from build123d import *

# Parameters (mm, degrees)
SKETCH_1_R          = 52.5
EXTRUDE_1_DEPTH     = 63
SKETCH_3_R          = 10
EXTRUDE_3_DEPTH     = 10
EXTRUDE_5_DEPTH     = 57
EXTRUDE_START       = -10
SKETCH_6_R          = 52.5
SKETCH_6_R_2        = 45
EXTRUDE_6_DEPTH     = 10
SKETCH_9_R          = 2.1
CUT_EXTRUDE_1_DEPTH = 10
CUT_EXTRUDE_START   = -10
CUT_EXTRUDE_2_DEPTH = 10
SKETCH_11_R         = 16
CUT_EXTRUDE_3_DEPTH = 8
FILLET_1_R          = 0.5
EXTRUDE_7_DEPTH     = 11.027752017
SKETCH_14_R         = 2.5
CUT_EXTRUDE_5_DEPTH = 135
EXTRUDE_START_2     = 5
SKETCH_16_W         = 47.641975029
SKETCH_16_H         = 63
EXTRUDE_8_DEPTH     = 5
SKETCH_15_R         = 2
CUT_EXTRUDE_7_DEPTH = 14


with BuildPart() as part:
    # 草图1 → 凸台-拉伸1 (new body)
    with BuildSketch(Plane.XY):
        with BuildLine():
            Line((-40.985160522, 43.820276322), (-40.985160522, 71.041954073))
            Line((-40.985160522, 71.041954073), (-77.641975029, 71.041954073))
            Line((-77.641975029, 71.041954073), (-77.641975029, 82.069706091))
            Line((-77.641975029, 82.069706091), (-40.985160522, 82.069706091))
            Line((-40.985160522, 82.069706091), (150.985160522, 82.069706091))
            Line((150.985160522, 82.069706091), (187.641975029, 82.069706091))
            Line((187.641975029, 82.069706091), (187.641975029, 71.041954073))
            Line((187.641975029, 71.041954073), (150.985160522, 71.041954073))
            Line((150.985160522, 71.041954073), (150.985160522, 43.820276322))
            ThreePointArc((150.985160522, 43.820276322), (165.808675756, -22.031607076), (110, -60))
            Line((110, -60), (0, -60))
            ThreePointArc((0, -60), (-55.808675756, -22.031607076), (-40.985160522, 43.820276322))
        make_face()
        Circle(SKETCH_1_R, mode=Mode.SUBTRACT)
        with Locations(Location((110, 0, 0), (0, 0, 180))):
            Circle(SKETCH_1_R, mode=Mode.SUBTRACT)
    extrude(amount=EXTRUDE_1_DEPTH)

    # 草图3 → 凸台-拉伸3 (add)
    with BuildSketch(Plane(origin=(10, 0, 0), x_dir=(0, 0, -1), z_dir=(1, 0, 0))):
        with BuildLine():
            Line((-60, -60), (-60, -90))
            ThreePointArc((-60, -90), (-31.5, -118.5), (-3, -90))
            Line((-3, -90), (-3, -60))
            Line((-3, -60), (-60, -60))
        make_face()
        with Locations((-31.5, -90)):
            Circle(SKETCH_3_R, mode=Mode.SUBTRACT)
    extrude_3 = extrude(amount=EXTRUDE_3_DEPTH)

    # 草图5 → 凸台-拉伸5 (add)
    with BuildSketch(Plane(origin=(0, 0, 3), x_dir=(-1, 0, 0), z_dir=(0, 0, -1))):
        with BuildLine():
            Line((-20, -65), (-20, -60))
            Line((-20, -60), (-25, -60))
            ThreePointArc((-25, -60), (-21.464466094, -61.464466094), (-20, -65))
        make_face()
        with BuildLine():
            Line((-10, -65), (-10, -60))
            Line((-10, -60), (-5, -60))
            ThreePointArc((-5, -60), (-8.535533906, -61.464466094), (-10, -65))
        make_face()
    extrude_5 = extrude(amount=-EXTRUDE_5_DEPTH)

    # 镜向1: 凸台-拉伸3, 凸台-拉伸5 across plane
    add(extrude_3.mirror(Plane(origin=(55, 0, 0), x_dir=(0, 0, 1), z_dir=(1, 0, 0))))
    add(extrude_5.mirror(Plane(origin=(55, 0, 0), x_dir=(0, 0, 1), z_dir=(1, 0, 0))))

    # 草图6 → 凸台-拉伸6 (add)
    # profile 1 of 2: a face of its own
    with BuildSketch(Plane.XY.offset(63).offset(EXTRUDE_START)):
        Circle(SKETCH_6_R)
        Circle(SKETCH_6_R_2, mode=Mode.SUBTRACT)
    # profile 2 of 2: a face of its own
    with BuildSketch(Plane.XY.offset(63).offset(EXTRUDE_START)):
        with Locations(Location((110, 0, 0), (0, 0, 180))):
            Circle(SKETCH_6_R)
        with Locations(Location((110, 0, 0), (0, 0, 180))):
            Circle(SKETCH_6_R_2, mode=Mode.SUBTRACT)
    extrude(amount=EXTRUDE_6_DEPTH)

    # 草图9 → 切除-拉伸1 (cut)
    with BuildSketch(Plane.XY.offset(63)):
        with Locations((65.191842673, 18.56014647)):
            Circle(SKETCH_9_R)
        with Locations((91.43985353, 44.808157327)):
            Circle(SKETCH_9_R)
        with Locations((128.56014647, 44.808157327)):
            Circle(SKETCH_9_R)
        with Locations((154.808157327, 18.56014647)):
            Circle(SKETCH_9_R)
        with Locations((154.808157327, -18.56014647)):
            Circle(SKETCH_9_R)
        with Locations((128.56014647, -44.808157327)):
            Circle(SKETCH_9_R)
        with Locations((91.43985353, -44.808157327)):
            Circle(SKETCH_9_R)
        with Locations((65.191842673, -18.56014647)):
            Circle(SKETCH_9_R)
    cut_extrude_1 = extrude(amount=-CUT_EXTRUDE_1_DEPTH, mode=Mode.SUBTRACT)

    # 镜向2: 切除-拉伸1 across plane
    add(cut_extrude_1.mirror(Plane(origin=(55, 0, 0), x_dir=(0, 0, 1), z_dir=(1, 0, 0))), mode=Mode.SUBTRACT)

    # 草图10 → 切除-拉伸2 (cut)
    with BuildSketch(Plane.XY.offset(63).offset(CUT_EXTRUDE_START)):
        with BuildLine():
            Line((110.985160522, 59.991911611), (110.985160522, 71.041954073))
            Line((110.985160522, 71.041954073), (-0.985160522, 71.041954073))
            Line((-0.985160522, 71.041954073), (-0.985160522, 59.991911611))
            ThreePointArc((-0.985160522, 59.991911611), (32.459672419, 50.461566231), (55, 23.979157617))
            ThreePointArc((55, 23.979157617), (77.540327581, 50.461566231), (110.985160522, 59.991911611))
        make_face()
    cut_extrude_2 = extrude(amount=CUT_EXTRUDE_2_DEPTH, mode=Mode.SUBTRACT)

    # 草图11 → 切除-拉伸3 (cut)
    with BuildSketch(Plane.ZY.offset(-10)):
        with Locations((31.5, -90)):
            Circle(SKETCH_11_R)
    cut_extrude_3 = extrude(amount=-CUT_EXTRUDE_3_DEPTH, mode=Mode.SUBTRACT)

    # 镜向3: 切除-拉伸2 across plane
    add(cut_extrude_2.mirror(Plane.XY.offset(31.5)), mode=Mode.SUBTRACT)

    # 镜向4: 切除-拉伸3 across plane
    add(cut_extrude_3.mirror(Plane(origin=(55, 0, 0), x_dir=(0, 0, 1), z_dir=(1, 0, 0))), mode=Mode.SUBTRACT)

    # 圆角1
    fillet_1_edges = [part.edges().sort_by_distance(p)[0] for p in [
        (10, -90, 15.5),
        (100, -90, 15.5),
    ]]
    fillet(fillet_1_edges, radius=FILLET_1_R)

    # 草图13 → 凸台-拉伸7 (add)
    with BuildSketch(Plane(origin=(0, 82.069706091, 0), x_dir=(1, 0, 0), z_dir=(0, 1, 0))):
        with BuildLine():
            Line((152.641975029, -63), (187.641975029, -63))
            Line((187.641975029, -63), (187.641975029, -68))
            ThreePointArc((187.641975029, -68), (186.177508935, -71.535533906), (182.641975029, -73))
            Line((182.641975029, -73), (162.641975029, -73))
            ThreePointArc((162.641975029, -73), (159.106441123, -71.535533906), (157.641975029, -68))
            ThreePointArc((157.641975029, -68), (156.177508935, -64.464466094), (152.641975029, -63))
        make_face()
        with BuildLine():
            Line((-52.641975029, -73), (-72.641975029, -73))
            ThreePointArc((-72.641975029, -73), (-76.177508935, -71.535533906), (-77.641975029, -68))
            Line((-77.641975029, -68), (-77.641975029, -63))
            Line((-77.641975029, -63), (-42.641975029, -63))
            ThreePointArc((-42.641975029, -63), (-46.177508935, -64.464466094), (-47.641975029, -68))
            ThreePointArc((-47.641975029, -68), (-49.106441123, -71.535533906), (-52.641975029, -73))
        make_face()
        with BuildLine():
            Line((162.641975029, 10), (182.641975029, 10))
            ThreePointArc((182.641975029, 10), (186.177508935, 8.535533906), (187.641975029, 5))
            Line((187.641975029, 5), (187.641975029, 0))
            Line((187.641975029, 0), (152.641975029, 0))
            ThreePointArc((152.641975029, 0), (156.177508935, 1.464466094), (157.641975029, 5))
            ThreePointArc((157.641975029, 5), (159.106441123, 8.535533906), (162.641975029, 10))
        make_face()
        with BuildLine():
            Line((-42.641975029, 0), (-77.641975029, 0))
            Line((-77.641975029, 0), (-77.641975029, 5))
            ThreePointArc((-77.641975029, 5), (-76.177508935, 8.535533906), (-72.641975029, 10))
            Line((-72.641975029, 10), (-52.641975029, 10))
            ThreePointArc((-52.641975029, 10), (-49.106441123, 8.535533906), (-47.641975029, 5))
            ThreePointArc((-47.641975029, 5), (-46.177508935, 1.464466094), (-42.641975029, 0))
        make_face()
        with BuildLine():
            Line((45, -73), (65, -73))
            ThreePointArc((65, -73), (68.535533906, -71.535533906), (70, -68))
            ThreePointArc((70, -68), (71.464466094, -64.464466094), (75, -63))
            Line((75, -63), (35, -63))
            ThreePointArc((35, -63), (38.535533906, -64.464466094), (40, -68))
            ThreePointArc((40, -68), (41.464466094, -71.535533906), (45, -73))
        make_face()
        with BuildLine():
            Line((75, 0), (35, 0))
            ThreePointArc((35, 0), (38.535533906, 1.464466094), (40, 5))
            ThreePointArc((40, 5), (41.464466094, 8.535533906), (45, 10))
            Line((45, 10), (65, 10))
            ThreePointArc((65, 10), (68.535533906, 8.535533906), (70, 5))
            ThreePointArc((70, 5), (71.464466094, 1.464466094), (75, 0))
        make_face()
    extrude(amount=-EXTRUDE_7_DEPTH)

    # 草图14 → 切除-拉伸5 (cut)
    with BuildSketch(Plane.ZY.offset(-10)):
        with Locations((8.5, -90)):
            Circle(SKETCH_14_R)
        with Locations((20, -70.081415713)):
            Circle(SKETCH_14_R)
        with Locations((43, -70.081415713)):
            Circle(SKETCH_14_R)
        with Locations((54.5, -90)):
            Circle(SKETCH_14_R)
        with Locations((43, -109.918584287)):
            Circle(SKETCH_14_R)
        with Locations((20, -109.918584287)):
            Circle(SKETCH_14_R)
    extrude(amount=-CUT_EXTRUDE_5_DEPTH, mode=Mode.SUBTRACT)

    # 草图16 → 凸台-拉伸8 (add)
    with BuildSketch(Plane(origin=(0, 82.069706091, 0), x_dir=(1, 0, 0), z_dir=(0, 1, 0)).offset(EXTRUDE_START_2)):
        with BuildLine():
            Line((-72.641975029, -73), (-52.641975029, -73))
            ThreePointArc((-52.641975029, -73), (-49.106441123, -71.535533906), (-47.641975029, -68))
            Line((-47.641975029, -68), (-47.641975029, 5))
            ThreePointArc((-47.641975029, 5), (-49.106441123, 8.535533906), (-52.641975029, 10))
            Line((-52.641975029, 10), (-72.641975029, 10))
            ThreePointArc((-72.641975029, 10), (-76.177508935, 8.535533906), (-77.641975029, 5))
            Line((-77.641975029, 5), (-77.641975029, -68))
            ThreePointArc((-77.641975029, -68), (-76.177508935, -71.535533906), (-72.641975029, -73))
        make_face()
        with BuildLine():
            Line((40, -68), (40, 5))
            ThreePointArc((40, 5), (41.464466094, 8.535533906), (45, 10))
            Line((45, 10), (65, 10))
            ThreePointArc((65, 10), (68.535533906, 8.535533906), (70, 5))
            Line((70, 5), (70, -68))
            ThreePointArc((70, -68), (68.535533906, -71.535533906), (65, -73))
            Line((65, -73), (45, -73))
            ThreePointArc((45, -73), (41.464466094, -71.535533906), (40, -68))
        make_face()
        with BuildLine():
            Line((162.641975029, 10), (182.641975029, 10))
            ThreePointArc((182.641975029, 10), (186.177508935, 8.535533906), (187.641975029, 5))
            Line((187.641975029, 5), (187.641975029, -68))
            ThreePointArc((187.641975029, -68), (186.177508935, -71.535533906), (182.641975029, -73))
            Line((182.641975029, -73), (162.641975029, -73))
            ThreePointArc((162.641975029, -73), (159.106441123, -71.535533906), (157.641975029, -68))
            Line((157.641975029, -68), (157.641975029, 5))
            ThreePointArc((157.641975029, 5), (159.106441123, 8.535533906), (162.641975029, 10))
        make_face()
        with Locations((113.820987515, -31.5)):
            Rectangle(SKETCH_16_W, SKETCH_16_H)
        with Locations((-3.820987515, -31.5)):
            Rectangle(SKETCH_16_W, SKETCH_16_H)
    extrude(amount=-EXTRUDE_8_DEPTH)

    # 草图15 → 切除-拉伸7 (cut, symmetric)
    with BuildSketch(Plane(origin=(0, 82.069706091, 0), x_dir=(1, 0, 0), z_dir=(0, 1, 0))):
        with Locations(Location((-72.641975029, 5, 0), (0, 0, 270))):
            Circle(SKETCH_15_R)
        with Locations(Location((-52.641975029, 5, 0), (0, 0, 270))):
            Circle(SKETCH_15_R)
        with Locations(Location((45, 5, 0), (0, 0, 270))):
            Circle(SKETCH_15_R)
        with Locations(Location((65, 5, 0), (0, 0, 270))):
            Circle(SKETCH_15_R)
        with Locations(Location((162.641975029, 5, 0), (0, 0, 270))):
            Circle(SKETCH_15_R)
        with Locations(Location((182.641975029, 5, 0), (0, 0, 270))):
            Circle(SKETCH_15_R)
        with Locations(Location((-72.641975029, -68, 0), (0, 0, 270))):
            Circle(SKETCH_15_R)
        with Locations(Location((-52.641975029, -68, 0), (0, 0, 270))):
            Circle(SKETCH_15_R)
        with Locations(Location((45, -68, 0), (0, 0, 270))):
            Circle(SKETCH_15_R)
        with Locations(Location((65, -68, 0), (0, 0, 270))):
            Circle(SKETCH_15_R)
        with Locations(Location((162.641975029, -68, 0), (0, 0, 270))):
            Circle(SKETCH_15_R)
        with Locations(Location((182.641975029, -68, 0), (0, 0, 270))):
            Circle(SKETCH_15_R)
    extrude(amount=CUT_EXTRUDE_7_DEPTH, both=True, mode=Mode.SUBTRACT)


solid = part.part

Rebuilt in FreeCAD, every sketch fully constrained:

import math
import FreeCAD as App
import Part
import Sketcher
from FreeCAD import Vector
Q = App.Units.Quantity


def edges_at(feature, points):
    """Names of the edges that pass closest to the given points."""
    edges = feature.Shape.Edges
    near = lambda p: min(range(len(edges)), key=lambda i: edges[i].distToShape(Part.Vertex(*p))[0])
    return sorted({f"Edge{near(p) + 1}" for p in points})

doc = App.newDocument("Part")
body = doc.addObject("PartDesign::Body", "Body")

# Sketch on XY plane
sketch1 = body.newObject("Sketcher::SketchObject", "Sketch")
sketch1.AttachmentSupport = (doc.getObject("XY_Plane"), [""])
sketch1.MapMode = "FlatFace"
sketch1.addGeometry([
    Part.LineSegment(Vector(-41, 71, 0), Vector(-41, 44, 0)),  # 0
    Part.ArcOfCircle(Part.Circle(Vector(0, 0, 0), Vector(0, 0, 1), 60), math.radians(133), math.radians(270)),  # 1
    Part.LineSegment(Vector(0, -60, 0), Vector(110, -60, 0)),  # 2
    Part.ArcOfCircle(Part.Circle(Vector(110, 0, 0), Vector(0, 0, 1), 60), math.radians(-90), math.radians(47)),  # 3
    Part.LineSegment(Vector(151, 44, 0), Vector(151, 71, 0)),  # 4
    Part.LineSegment(Vector(151, 71, 0), Vector(188, 71, 0)),  # 5
    Part.LineSegment(Vector(188, 71, 0), Vector(188, 82, 0)),  # 6
    Part.LineSegment(Vector(188, 82, 0), Vector(-78, 82, 0)),  # 7
    Part.LineSegment(Vector(-78, 82, 0), Vector(-78, 71, 0)),  # 8
    Part.LineSegment(Vector(-78, 71, 0), Vector(-41, 71, 0)),  # 9
    Part.Circle(Vector(110, 0, 0), Vector(0, 0, 1), 52),  # 10
    Part.Circle(Vector(0, 0, 0), Vector(0, 0, 1), 52),  # 11
], False)
sketch1.addConstraint([
    Sketcher.Constraint("Coincident", 0, 2, 1, 1),
    Sketcher.Constraint("Tangent", 1, 2, 2, 1),
    Sketcher.Constraint("Tangent", 2, 2, 3, 1),
    Sketcher.Constraint("Coincident", 3, 2, 4, 1),
    Sketcher.Constraint("Coincident", 4, 2, 5, 1),
    Sketcher.Constraint("Coincident", 5, 2, 6, 1),
    Sketcher.Constraint("Coincident", 6, 2, 7, 1),
    Sketcher.Constraint("Coincident", 7, 2, 8, 1),
    Sketcher.Constraint("Coincident", 8, 2, 9, 1),
    Sketcher.Constraint("Coincident", 9, 2, 0, 1),
    Sketcher.Constraint("Vertical", 0),
    Sketcher.Constraint("Horizontal", 2),
    Sketcher.Constraint("Vertical", 4),
    Sketcher.Constraint("Horizontal", 5),
    Sketcher.Constraint("Vertical", 6),
    Sketcher.Constraint("Horizontal", 7),
    Sketcher.Constraint("Vertical", 8),
    Sketcher.Constraint("Horizontal", 9),
    Sketcher.Constraint("Coincident", 1, 3, -1, 1),
    Sketcher.Constraint("Coincident", 11, 3, -1, 1),
    Sketcher.Constraint("Coincident", 10, 3, 3, 3),
    Sketcher.Constraint("Equal", 1, 3),
    Sketcher.Constraint("Equal", 10, 11),
    Sketcher.Constraint("Horizontal", 0, 2, 3, 2),
    Sketcher.Constraint("Horizontal", 5, 2, 8, 2),
    Sketcher.Constraint("Equal", 5, 9),
    Sketcher.Constraint("Diameter", 10, Q("105 mm")),
    Sketcher.Constraint("Radius", 1, Q("60 mm")),
    Sketcher.Constraint("DistanceX", 2, 1, 2, 2, Q("110 mm")),
    Sketcher.Constraint("DistanceX", 7, 2, 7, 1, Q("265.28395 mm")),
    Sketcher.Constraint("DistanceX", 5, 1, 5, 2, Q("36.656815 mm")),
    Sketcher.Constraint("DistanceY", 0, 2, 0, 1, Q("27.221678 mm")),
    Sketcher.Constraint("DistanceY", 6, 1, 6, 2, Q("11.027752 mm")),
])
pad1 = body.newObject("PartDesign::Pad", "Pad")
pad1.Profile = sketch1
pad1.Length = 63

# Sketch on YZ plane
sketch2 = body.newObject("Sketcher::SketchObject", "Sketch001")
sketch2.AttachmentSupport = (doc.getObject("YZ_Plane"), [""])
sketch2.MapMode = "FlatFace"
sketch2.AttachmentOffset = App.Placement(Vector(0, 0, 10), App.Rotation())
sketch2.addGeometry([
    Part.LineSegment(Vector(-60, 60, 0), Vector(-90, 60, 0)),  # 0
    Part.ArcOfCircle(Part.Circle(Vector(-90, 32, 0), Vector(0, 0, 1), 28), math.radians(90), math.radians(270)),  # 1
    Part.LineSegment(Vector(-90, 3, 0), Vector(-60, 3, 0)),  # 2
    Part.LineSegment(Vector(-60, 3, 0), Vector(-60, 60, 0)),  # 3
    Part.Circle(Vector(-90, 32, 0), Vector(0, 0, 1), 10),  # 4
], False)
sketch2.addConstraint([
    Sketcher.Constraint("Tangent", 0, 2, 1, 1),
    Sketcher.Constraint("Tangent", 1, 2, 2, 1),
    Sketcher.Constraint("Coincident", 2, 2, 3, 1),
    Sketcher.Constraint("Coincident", 3, 2, 0, 1),
    Sketcher.Constraint("Horizontal", 0),
    Sketcher.Constraint("Horizontal", 2),
    Sketcher.Constraint("Vertical", 3),
    Sketcher.Constraint("Coincident", 4, 3, 1, 3),
    Sketcher.Constraint("Diameter", 4, Q("20 mm")),
    Sketcher.Constraint("Radius", 1, Q("28.5 mm")),
    Sketcher.Constraint("DistanceX", 0, 2, 0, 1, Q("30 mm")),
    Sketcher.Constraint("DistanceX", 1, 3, -1, 1, Q("90 mm")),
    Sketcher.Constraint("DistanceY", -1, 1, 0, 2, Q("60 mm")),
])
pad2 = body.newObject("PartDesign::Pad", "Pad001")
pad2.Profile = sketch2
pad2.Length = 10

# Sketch on XY plane
sketch3 = body.newObject("Sketcher::SketchObject", "Sketch002")
sketch3.AttachmentSupport = (doc.getObject("XY_Plane"), [""])
sketch3.MapMode = "FlatFace"
sketch3.AttachmentOffset = App.Placement(Vector(0, 0, 3), App.Rotation())
sketch3.addGeometry([
    Part.LineSegment(Vector(20, -65, 0), Vector(20, -60, 0)),  # 0
    Part.LineSegment(Vector(20, -60, 0), Vector(25, -60, 0)),  # 1
    Part.ArcOfCircle(Part.Circle(Vector(25, -65, 0), Vector(0, 0, 1), 5), math.radians(90), math.radians(180)),  # 2
    Part.LineSegment(Vector(10, -60, 0), Vector(10, -65, 0)),  # 3
    Part.ArcOfCircle(Part.Circle(Vector(5, -65, 0), Vector(0, 0, 1), 5), math.radians(0), math.radians(90)),  # 4
    Part.LineSegment(Vector(5, -60, 0), Vector(10, -60, 0)),  # 5
], False)
sketch3.addConstraint([
    Sketcher.Constraint("Coincident", 0, 2, 1, 1),
    Sketcher.Constraint("Tangent", 1, 2, 2, 1),
    Sketcher.Constraint("Tangent", 2, 2, 0, 1),
    Sketcher.Constraint("Tangent", 3, 2, 4, 1),
    Sketcher.Constraint("Tangent", 4, 2, 5, 1),
    Sketcher.Constraint("Coincident", 5, 2, 3, 1),
    Sketcher.Constraint("Vertical", 0),
    Sketcher.Constraint("Horizontal", 1),
    Sketcher.Constraint("Vertical", 3),
    Sketcher.Constraint("Horizontal", 5),
    Sketcher.Constraint("Equal", 2, 4),
    Sketcher.Constraint("Horizontal", 2, 3, 4, 3),
    Sketcher.Constraint("Radius", 2, Q("5 mm")),
    Sketcher.Constraint("DistanceX", -1, 1, 2, 3, Q("25 mm")),
    Sketcher.Constraint("DistanceY", 2, 3, -1, 1, Q("65 mm")),
    Sketcher.Constraint("DistanceX", -1, 1, 4, 3, Q("5 mm")),
])
pad3 = body.newObject("PartDesign::Pad", "Pad002")
pad3.Profile = sketch3
pad3.Length = 57
doc.recompute()

datumplane = body.newObject("PartDesign::Plane", "DatumPlane")
datumplane.AttachmentSupport = (doc.getObject("YZ_Plane"), [""])
datumplane.MapMode = "FlatFace"
datumplane.AttachmentOffset = App.Placement(Vector(0, 0, 55), App.Rotation())
mirrored = body.newObject("PartDesign::Mirrored", "Mirrored")
mirrored.Originals = [pad2, pad3]
mirrored.MirrorPlane = (datumplane, [""])
body.Tip = mirrored

# Sketch on XY plane
sketch4 = body.newObject("Sketcher::SketchObject", "Sketch003")
sketch4.AttachmentSupport = (doc.getObject("XY_Plane"), [""])
sketch4.MapMode = "FlatFace"
sketch4.AttachmentOffset = App.Placement(Vector(0, 0, 53), App.Rotation())
sketch4.addGeometry([
    Part.Circle(Vector(0, 0, 0), Vector(0, 0, 1), 52),
    Part.Circle(Vector(0, 0, 0), Vector(0, 0, 1), 45),
    Part.Circle(Vector(110, 0, 0), Vector(0, 0, 1), 52),
    Part.Circle(Vector(110, 0, 0), Vector(0, 0, 1), 45),
], False)
sketch4.addConstraint([
    Sketcher.Constraint("Coincident", 0, 3, -1, 1),
    Sketcher.Constraint("Coincident", 1, 3, -1, 1),
    Sketcher.Constraint("Coincident", 3, 3, 2, 3),
    Sketcher.Constraint("Equal", 0, 2),
    Sketcher.Constraint("Equal", 1, 3),
    Sketcher.Constraint("PointOnObject", 2, 3, -1),
    Sketcher.Constraint("Diameter", 0, Q("105 mm")),
    Sketcher.Constraint("Diameter", 1, Q("90 mm")),
    Sketcher.Constraint("DistanceX", -1, 1, 2, 3, Q("110 mm")),
])
pad4 = body.newObject("PartDesign::Pad", "Pad003")
pad4.Profile = sketch4
pad4.Length = 10

# Sketch on XY plane
sketch5 = body.newObject("Sketcher::SketchObject", "Sketch004")
sketch5.AttachmentSupport = (doc.getObject("XY_Plane"), [""])
sketch5.MapMode = "FlatFace"
sketch5.AttachmentOffset = App.Placement(Vector(0, 0, 63), App.Rotation())
sketch5.addGeometry([
    Part.Circle(Vector(65.2, 18.6, 0), Vector(0, 0, 1), 2.1),  # 0
    Part.Circle(Vector(91.4, 44.8, 0), Vector(0, 0, 1), 2.1),  # 1
    Part.Circle(Vector(128.6, 44.8, 0), Vector(0, 0, 1), 2.1),  # 2
    Part.Circle(Vector(154.8, 18.6, 0), Vector(0, 0, 1), 2.1),  # 3
    Part.Circle(Vector(154.8, -18.6, 0), Vector(0, 0, 1), 2.1),  # 4
    Part.Circle(Vector(128.6, -44.8, 0), Vector(0, 0, 1), 2.1),  # 5
    Part.Circle(Vector(91.4, -44.8, 0), Vector(0, 0, 1), 2.1),  # 6
    Part.Circle(Vector(65.2, -18.6, 0), Vector(0, 0, 1), 2.1),  # 7
], False)
sketch5.addConstraint([
    Sketcher.Constraint("Equal", 0, 1),
    Sketcher.Constraint("Equal", 1, 2),
    Sketcher.Constraint("Equal", 2, 3),
    Sketcher.Constraint("Equal", 3, 4),
    Sketcher.Constraint("Equal", 4, 5),
    Sketcher.Constraint("Equal", 5, 6),
    Sketcher.Constraint("Equal", 6, 7),
    Sketcher.Constraint("Symmetric", 3, 3, 4, 3, -1),
    Sketcher.Constraint("Symmetric", 2, 3, 5, 3, -1),
    Sketcher.Constraint("Symmetric", 1, 3, 6, 3, -1),
    Sketcher.Constraint("Symmetric", 0, 3, 7, 3, -1),
    Sketcher.Constraint("Horizontal", 1, 3, 2, 3),
    Sketcher.Constraint("Horizontal", 0, 3, 3, 3),
    Sketcher.Constraint("Diameter", 0, Q("4.2 mm")),
    Sketcher.Constraint("DistanceX", 0, 3, 1, 3, Q("26.248011 mm")),
    Sketcher.Constraint("DistanceY", 0, 3, 1, 3, Q("26.248011 mm")),
    Sketcher.Constraint("DistanceX", 2, 3, 3, 3, Q("26.248011 mm")),
    Sketcher.Constraint("DistanceX", -1, 1, 0, 3, Q("65.191843 mm")),
    Sketcher.Constraint("DistanceY", -1, 1, 0, 3, Q("18.560146 mm")),
    Sketcher.Constraint("DistanceX", -1, 1, 2, 3, Q("128.560146 mm")),
])
pocket1 = body.newObject("PartDesign::Pocket", "Pocket")
pocket1.Profile = sketch5
pocket1.Length = 10
doc.recompute()

datumplane2 = body.newObject("PartDesign::Plane", "DatumPlane001")
datumplane2.AttachmentSupport = (doc.getObject("YZ_Plane"), [""])
datumplane2.MapMode = "FlatFace"
datumplane2.AttachmentOffset = App.Placement(Vector(0, 0, 55), App.Rotation())
mirrored2 = body.newObject("PartDesign::Mirrored", "Mirrored001")
mirrored2.Originals = [pocket1]
mirrored2.MirrorPlane = (datumplane2, [""])
body.Tip = mirrored2

# Sketch on XY plane
sketch6 = body.newObject("Sketcher::SketchObject", "Sketch005")
sketch6.AttachmentSupport = (doc.getObject("XY_Plane"), [""])
sketch6.MapMode = "FlatFace"
sketch6.AttachmentOffset = App.Placement(Vector(0, 0, 53), App.Rotation())
sketch6.addGeometry([
    Part.LineSegment(Vector(111, 60, 0), Vector(111, 71, 0)),  # 0
    Part.LineSegment(Vector(111, 71, 0), Vector(-1, 71, 0)),  # 1
    Part.LineSegment(Vector(-1, 71, 0), Vector(-1, 60, 0)),  # 2
    Part.ArcOfCircle(Part.Circle(Vector(0, 0, 0), Vector(0, 0, 1), 60), math.radians(24), math.radians(91)),  # 3
    Part.ArcOfCircle(Part.Circle(Vector(110, 0, 0), Vector(0, 0, 1), 60), math.radians(89), math.radians(156)),  # 4
], False)
sketch6.addConstraint([
    Sketcher.Constraint("Coincident", 0, 2, 1, 1),
    Sketcher.Constraint("Coincident", 1, 2, 2, 1),
    Sketcher.Constraint("Coincident", 2, 2, 3, 2),
    Sketcher.Constraint("Coincident", 3, 1, 4, 2),
    Sketcher.Constraint("Coincident", 4, 1, 0, 1),
    Sketcher.Constraint("Vertical", 0),
    Sketcher.Constraint("Horizontal", 1),
    Sketcher.Constraint("Vertical", 2),
    Sketcher.Constraint("Coincident", 3, 3, -1, 1),
    Sketcher.Constraint("Equal", 3, 4),
    Sketcher.Constraint("PointOnObject", 4, 3, -1),
    Sketcher.Constraint("Horizontal", 2, 2, 4, 1),
    Sketcher.Constraint("Radius", 3, Q("60 mm")),
    Sketcher.Constraint("DistanceX", -1, 1, 4, 3, Q("110 mm")),
    Sketcher.Constraint("DistanceX", 1, 2, 1, 1, Q("111.970321 mm")),
    Sketcher.Constraint("DistanceY", 0, 1, 0, 2, Q("11.050042 mm")),
])
pocket2 = body.newObject("PartDesign::Pocket", "Pocket001")
pocket2.Profile = sketch6
pocket2.Length = 10
pocket2.Reversed = True

# Sketch on YZ plane
sketch7 = body.newObject("Sketcher::SketchObject", "Sketch006")
sketch7.AttachmentSupport = (doc.getObject("YZ_Plane"), [""])
sketch7.MapMode = "FlatFace"
sketch7.AttachmentOffset = App.Placement(Vector(0, 0, 10), App.Rotation())
sketch7.addGeometry(Part.Circle(Vector(-90, 32, 0), Vector(0, 0, 1), 16), False)
sketch7.addConstraint([
    Sketcher.Constraint("Diameter", 0, Q("32 mm")),
    Sketcher.Constraint("DistanceX", 0, 3, -1, 1, Q("90 mm")),
    Sketcher.Constraint("DistanceY", -1, 1, 0, 3, Q("31.5 mm")),
])
pocket3 = body.newObject("PartDesign::Pocket", "Pocket002")
pocket3.Profile = sketch7
pocket3.Length = 8
pocket3.Reversed = True
doc.recompute()

datumplane3 = body.newObject("PartDesign::Plane", "DatumPlane002")
datumplane3.AttachmentSupport = (doc.getObject("XY_Plane"), [""])
datumplane3.MapMode = "FlatFace"
datumplane3.AttachmentOffset = App.Placement(Vector(0, 0, 31.5), App.Rotation())
mirrored3 = body.newObject("PartDesign::Mirrored", "Mirrored002")
mirrored3.Originals = [pocket2]
mirrored3.MirrorPlane = (datumplane3, [""])
body.Tip = mirrored3
doc.recompute()

datumplane4 = body.newObject("PartDesign::Plane", "DatumPlane003")
datumplane4.AttachmentSupport = (doc.getObject("YZ_Plane"), [""])
datumplane4.MapMode = "FlatFace"
datumplane4.AttachmentOffset = App.Placement(Vector(0, 0, 55), App.Rotation())
mirrored4 = body.newObject("PartDesign::Mirrored", "Mirrored003")
mirrored4.Originals = [pocket3]
mirrored4.MirrorPlane = (datumplane4, [""])
body.Tip = mirrored4
doc.recompute()

fillet = body.newObject("PartDesign::Fillet", "Fillet")
fillet.Base = (mirrored4, edges_at(mirrored4, [(10, -90, 15.5), (100, -90, 15.5)]))
fillet.Radius = 0.5

# Sketch on XZ plane
sketch8 = body.newObject("Sketcher::SketchObject", "Sketch007")
sketch8.AttachmentSupport = (doc.getObject("XZ_Plane"), [""])
sketch8.MapMode = "FlatFace"
sketch8.AttachmentOffset = App.Placement(Vector(0, 0, -82.069706), App.Rotation())
sketch8.addGeometry([
    Part.LineSegment(Vector(188, 63, 0), Vector(153, 63, 0)),  # 0
    Part.ArcOfCircle(Part.Circle(Vector(153, 68, 0), Vector(0, 0, 1), 5), math.radians(-90), math.radians(0)),  # 1
    Part.ArcOfCircle(Part.Circle(Vector(163, 68, 0), Vector(0, 0, 1), 5), math.radians(90), math.radians(180)),  # 2
    Part.LineSegment(Vector(163, 73, 0), Vector(183, 73, 0)),  # 3
    Part.ArcOfCircle(Part.Circle(Vector(183, 68, 0), Vector(0, 0, 1), 5), math.radians(0), math.radians(90)),  # 4
    Part.LineSegment(Vector(188, 68, 0), Vector(188, 63, 0)),  # 5
    Part.LineSegment(Vector(-73, 73, 0), Vector(-53, 73, 0)),  # 6
    Part.ArcOfCircle(Part.Circle(Vector(-53, 68, 0), Vector(0, 0, 1), 5), math.radians(0), math.radians(90)),  # 7
    Part.ArcOfCircle(Part.Circle(Vector(-43, 68, 0), Vector(0, 0, 1), 5), math.radians(180), math.radians(270)),  # 8
    Part.LineSegment(Vector(-43, 63, 0), Vector(-78, 63, 0)),  # 9
    Part.LineSegment(Vector(-78, 63, 0), Vector(-78, 68, 0)),  # 10
    Part.ArcOfCircle(Part.Circle(Vector(-73, 68, 0), Vector(0, 0, 1), 5), math.radians(90), math.radians(180)),  # 11
    Part.LineSegment(Vector(183, -10, 0), Vector(163, -10, 0)),  # 12
    Part.ArcOfCircle(Part.Circle(Vector(163, -5, 0), Vector(0, 0, 1), 5), math.radians(180), math.radians(270)),  # 13
    Part.ArcOfCircle(Part.Circle(Vector(153, -5, 0), Vector(0, 0, 1), 5), math.radians(0), math.radians(90)),  # 14
    Part.LineSegment(Vector(153, 0, 0), Vector(188, 0, 0)),  # 15
    Part.LineSegment(Vector(188, 0, 0), Vector(188, -5, 0)),  # 16
    Part.ArcOfCircle(Part.Circle(Vector(183, -5, 0), Vector(0, 0, 1), 5), math.radians(-90), math.radians(0)),  # 17
    Part.LineSegment(Vector(-78, 0, 0), Vector(-43, 0, 0)),  # 18
    Part.ArcOfCircle(Part.Circle(Vector(-43, -5, 0), Vector(0, 0, 1), 5), math.radians(90), math.radians(180)),  # 19
    Part.ArcOfCircle(Part.Circle(Vector(-53, -5, 0), Vector(0, 0, 1), 5), math.radians(-90), math.radians(0)),  # 20
    Part.LineSegment(Vector(-53, -10, 0), Vector(-73, -10, 0)),  # 21
    Part.ArcOfCircle(Part.Circle(Vector(-73, -5, 0), Vector(0, 0, 1), 5), math.radians(180), math.radians(270)),  # 22
    Part.LineSegment(Vector(-78, -5, 0), Vector(-78, 0, 0)),  # 23
    Part.LineSegment(Vector(45, 73, 0), Vector(65, 73, 0)),  # 24
    Part.ArcOfCircle(Part.Circle(Vector(65, 68, 0), Vector(0, 0, 1), 5), math.radians(0), math.radians(90)),  # 25
    Part.ArcOfCircle(Part.Circle(Vector(75, 68, 0), Vector(0, 0, 1), 5), math.radians(180), math.radians(270)),  # 26
    Part.LineSegment(Vector(75, 63, 0), Vector(35, 63, 0)),  # 27
    Part.ArcOfCircle(Part.Circle(Vector(35, 68, 0), Vector(0, 0, 1), 5), math.radians(-90), math.radians(0)),  # 28
    Part.ArcOfCircle(Part.Circle(Vector(45, 68, 0), Vector(0, 0, 1), 5), math.radians(90), math.radians(180)),  # 29
    Part.LineSegment(Vector(35, 0, 0), Vector(75, 0, 0)),  # 30
    Part.ArcOfCircle(Part.Circle(Vector(75, -5, 0), Vector(0, 0, 1), 5), math.radians(90), math.radians(180)),  # 31
    Part.ArcOfCircle(Part.Circle(Vector(65, -5, 0), Vector(0, 0, 1), 5), math.radians(-90), math.radians(0)),  # 32
    Part.LineSegment(Vector(65, -10, 0), Vector(45, -10, 0)),  # 33
    Part.ArcOfCircle(Part.Circle(Vector(45, -5, 0), Vector(0, 0, 1), 5), math.radians(180), math.radians(270)),  # 34
    Part.ArcOfCircle(Part.Circle(Vector(35, -5, 0), Vector(0, 0, 1), 5), math.radians(0), math.radians(90)),  # 35
], False)
sketch8.addConstraint([
    Sketcher.Constraint("Tangent", 0, 2, 1, 1),
    Sketcher.Constraint("Tangent", 1, 2, 2, 2),
    Sketcher.Constraint("Tangent", 2, 1, 3, 1),
    Sketcher.Constraint("Tangent", 3, 2, 4, 2),
    Sketcher.Constraint("Tangent", 4, 1, 5, 1),
    Sketcher.Constraint("Coincident", 5, 2, 0, 1),
    Sketcher.Constraint("Tangent", 6, 2, 7, 2),
    Sketcher.Constraint("Tangent", 7, 1, 8, 1),
    Sketcher.Constraint("Tangent", 8, 2, 9, 1),
    Sketcher.Constraint("Coincident", 9, 2, 10, 1),
    Sketcher.Constraint("Tangent", 10, 2, 11, 2),
    Sketcher.Constraint("Tangent", 11, 1, 6, 1),
    Sketcher.Constraint("Tangent", 12, 2, 13, 2),
    Sketcher.Constraint("Tangent", 13, 1, 14, 1),
    Sketcher.Constraint("Tangent", 14, 2, 15, 1),
    Sketcher.Constraint("Coincident", 15, 2, 16, 1),
    Sketcher.Constraint("Tangent", 16, 2, 17, 2),
    Sketcher.Constraint("Tangent", 17, 1, 12, 1),
    Sketcher.Constraint("Tangent", 18, 2, 19, 1),
    Sketcher.Constraint("Tangent", 19, 2, 20, 2),
    Sketcher.Constraint("Tangent", 20, 1, 21, 1),
    Sketcher.Constraint("Tangent", 21, 2, 22, 2),
    Sketcher.Constraint("Tangent", 22, 1, 23, 1),
    Sketcher.Constraint("Coincident", 23, 2, 18, 1),
    Sketcher.Constraint("Tangent", 24, 2, 25, 2),
    Sketcher.Constraint("Tangent", 25, 1, 26, 1),
    Sketcher.Constraint("Tangent", 26, 2, 27, 1),
    Sketcher.Constraint("Tangent", 27, 2, 28, 1),
    Sketcher.Constraint("Tangent", 28, 2, 29, 2),
    Sketcher.Constraint("Tangent", 29, 1, 24, 1),
    Sketcher.Constraint("Tangent", 30, 2, 31, 1),
    Sketcher.Constraint("Tangent", 31, 2, 32, 2),
    Sketcher.Constraint("Tangent", 32, 1, 33, 1),
    Sketcher.Constraint("Tangent", 33, 2, 34, 2),
    Sketcher.Constraint("Tangent", 34, 1, 35, 1),
    Sketcher.Constraint("Tangent", 35, 2, 30, 1),
    Sketcher.Constraint("Horizontal", 0),
    Sketcher.Constraint("Horizontal", 3),
    Sketcher.Constraint("Vertical", 5),
    Sketcher.Constraint("Horizontal", 6),
    Sketcher.Constraint("Horizontal", 9),
    Sketcher.Constraint("Vertical", 10),
    Sketcher.Constraint("Horizontal", 12),
    Sketcher.Constraint("Horizontal", 15),
    Sketcher.Constraint("Vertical", 16),
    Sketcher.Constraint("Horizontal", 18),
    Sketcher.Constraint("Horizontal", 21),
    Sketcher.Constraint("Vertical", 23),
    Sketcher.Constraint("Horizontal", 24),
    Sketcher.Constraint("Horizontal", 27),
    Sketcher.Constraint("Horizontal", 30),
    Sketcher.Constraint("Horizontal", 33),
    Sketcher.Constraint("Equal", 1, 2),
    Sketcher.Constraint("Equal", 2, 4),
    Sketcher.Constraint("Equal", 4, 7),
    Sketcher.Constraint("Equal", 7, 8),
    Sketcher.Constraint("Equal", 8, 11),
    Sketcher.Constraint("Equal", 11, 13),
    Sketcher.Constraint("Equal", 13, 14),
    Sketcher.Constraint("Equal", 14, 17),
    Sketcher.Constraint("Equal", 17, 19),
    Sketcher.Constraint("Equal", 19, 20),
    Sketcher.Constraint("Equal", 20, 22),
    Sketcher.Constraint("Equal", 22, 25),
    Sketcher.Constraint("Equal", 25, 26),
    Sketcher.Constraint("Equal", 26, 28),
    Sketcher.Constraint("Equal", 28, 29),
    Sketcher.Constraint("Equal", 29, 31),
    Sketcher.Constraint("Equal", 31, 32),
    Sketcher.Constraint("Equal", 32, 34),
    Sketcher.Constraint("Equal", 34, 35),
    Sketcher.Constraint("PointOnObject", 14, 2, -1),
    Sketcher.Constraint("PointOnObject", 18, 2, -1),
    Sketcher.Constraint("PointOnObject", 30, 2, -1),
    Sketcher.Constraint("Horizontal", 1, 3, 2, 3),
    Sketcher.Constraint("Horizontal", 4, 3, 7, 3),
    Sketcher.Constraint("Horizontal", 7, 3, 8, 3),
    Sketcher.Constraint("Horizontal", 13, 3, 14, 3),
    Sketcher.Constraint("Horizontal", 19, 3, 20, 3),
    Sketcher.Constraint("Horizontal", 11, 3, 25, 3),
    Sketcher.Constraint("Horizontal", 25, 3, 26, 3),
    Sketcher.Constraint("Horizontal", 31, 3, 32, 3),
    Sketcher.Constraint("Vertical", 2, 3, 13, 3),
    Sketcher.Constraint("Vertical", 4, 3, 17, 3),
    Sketcher.Constraint("Vertical", 8, 3, 19, 3),
    Sketcher.Constraint("Vertical", 11, 3, 22, 3),
    Sketcher.Constraint("Vertical", 26, 3, 31, 3),
    Sketcher.Constraint("Vertical", 29, 3, 34, 3),
    Sketcher.Constraint("Equal", 3, 6),
    Sketcher.Constraint("Equal", 21, 24),
    Sketcher.Constraint("Radius", 1, Q("5 mm")),
    Sketcher.Constraint("DistanceX", 0, 2, 0, 1, Q("35 mm")),
    Sketcher.Constraint("DistanceY", -1, 1, 1, 3, Q("68 mm")),
    Sketcher.Constraint("DistanceX", -1, 1, 25, 3, Q("65 mm")),
    Sketcher.Constraint("DistanceX", 7, 3, 1, 3, Q("205.28395 mm")),
    Sketcher.Constraint("DistanceX", -1, 1, 1, 3, Q("152.641975 mm")),
])
pad5 = body.newObject("PartDesign::Pad", "Pad004")
pad5.Profile = sketch8
pad5.Length = 11.027752

# Sketch on YZ plane
sketch9 = body.newObject("Sketcher::SketchObject", "Sketch008")
sketch9.AttachmentSupport = (doc.getObject("YZ_Plane"), [""])
sketch9.MapMode = "FlatFace"
sketch9.AttachmentOffset = App.Placement(Vector(0, 0, 10), App.Rotation())
sketch9.addGeometry([
    Part.Circle(Vector(-90, 8.5, 0), Vector(0, 0, 1), 2.5),  # 0
    Part.Circle(Vector(-70.1, 20, 0), Vector(0, 0, 1), 2.5),  # 1
    Part.Circle(Vector(-70.1, 43, 0), Vector(0, 0, 1), 2.5),  # 2
    Part.Circle(Vector(-90, 54.5, 0), Vector(0, 0, 1), 2.5),  # 3
    Part.Circle(Vector(-109.9, 43, 0), Vector(0, 0, 1), 2.5),  # 4
    Part.Circle(Vector(-109.9, 20, 0), Vector(0, 0, 1), 2.5),  # 5
], False)
sketch9.addConstraint([
    Sketcher.Constraint("Equal", 0, 1),
    Sketcher.Constraint("Equal", 1, 2),
    Sketcher.Constraint("Equal", 2, 3),
    Sketcher.Constraint("Equal", 3, 4),
    Sketcher.Constraint("Equal", 4, 5),
    Sketcher.Constraint("Horizontal", 2, 3, 4, 3),
    Sketcher.Constraint("Horizontal", 1, 3, 5, 3),
    Sketcher.Constraint("Vertical", 1, 3, 2, 3),
    Sketcher.Constraint("Vertical", 0, 3, 3, 3),
    Sketcher.Constraint("Vertical", 4, 3, 5, 3),
    Sketcher.Constraint("Diameter", 0, Q("5 mm")),
    Sketcher.Constraint("DistanceX", 0, 3, -1, 1, Q("90 mm")),
    Sketcher.Constraint("DistanceY", -1, 1, 1, 3, Q("20 mm")),
    Sketcher.Constraint("DistanceY", -1, 1, 2, 3, Q("43 mm")),
    Sketcher.Constraint("DistanceY", 0, 3, 3, 3, Q("46 mm")),
    Sketcher.Constraint("DistanceY", -1, 1, 0, 3, Q("8.5 mm")),
    Sketcher.Constraint("DistanceX", 4, 3, 2, 3, Q("39.837169 mm")),
    Sketcher.Constraint("DistanceX", 1, 3, -1, 1, Q("70.081416 mm")),
])
pocket4 = body.newObject("PartDesign::Pocket", "Pocket003")
pocket4.Profile = sketch9
pocket4.Length = 135
pocket4.Reversed = True

# Sketch on XZ plane
sketch10 = body.newObject("Sketcher::SketchObject", "Sketch009")
sketch10.AttachmentSupport = (doc.getObject("XZ_Plane"), [""])
sketch10.MapMode = "FlatFace"
sketch10.AttachmentOffset = App.Placement(Vector(0, 0, -87.069706), App.Rotation())
sketch10.addGeometry([
    Part.LineSegment(Vector(-73, 73, 0), Vector(-53, 73, 0)),  # 0
    Part.ArcOfCircle(Part.Circle(Vector(-53, 68, 0), Vector(0, 0, 1), 5), math.radians(0), math.radians(90)),  # 1
    Part.LineSegment(Vector(-48, 68, 0), Vector(-48, -5, 0)),  # 2
    Part.ArcOfCircle(Part.Circle(Vector(-53, -5, 0), Vector(0, 0, 1), 5), math.radians(-90), math.radians(0)),  # 3
    Part.LineSegment(Vector(-53, -10, 0), Vector(-73, -10, 0)),  # 4
    Part.ArcOfCircle(Part.Circle(Vector(-73, -5, 0), Vector(0, 0, 1), 5), math.radians(180), math.radians(270)),  # 5
    Part.LineSegment(Vector(-78, -5, 0), Vector(-78, 68, 0)),  # 6
    Part.ArcOfCircle(Part.Circle(Vector(-73, 68, 0), Vector(0, 0, 1), 5), math.radians(90), math.radians(180)),  # 7
    Part.LineSegment(Vector(40, -5, 0), Vector(40, 68, 0)),  # 8
    Part.ArcOfCircle(Part.Circle(Vector(45, 68, 0), Vector(0, 0, 1), 5), math.radians(90), math.radians(180)),  # 9
    Part.LineSegment(Vector(45, 73, 0), Vector(65, 73, 0)),  # 10
    Part.ArcOfCircle(Part.Circle(Vector(65, 68, 0), Vector(0, 0, 1), 5), math.radians(0), math.radians(90)),  # 11
    Part.LineSegment(Vector(70, 68, 0), Vector(70, -5, 0)),  # 12
    Part.ArcOfCircle(Part.Circle(Vector(65, -5, 0), Vector(0, 0, 1), 5), math.radians(-90), math.radians(0)),  # 13
    Part.LineSegment(Vector(65, -10, 0), Vector(45, -10, 0)),  # 14
    Part.ArcOfCircle(Part.Circle(Vector(45, -5, 0), Vector(0, 0, 1), 5), math.radians(180), math.radians(270)),  # 15
    Part.LineSegment(Vector(183, -10, 0), Vector(163, -10, 0)),  # 16
    Part.ArcOfCircle(Part.Circle(Vector(163, -5, 0), Vector(0, 0, 1), 5), math.radians(180), math.radians(270)),  # 17
    Part.LineSegment(Vector(158, -5, 0), Vector(158, 68, 0)),  # 18
    Part.ArcOfCircle(Part.Circle(Vector(163, 68, 0), Vector(0, 0, 1), 5), math.radians(90), math.radians(180)),  # 19
    Part.LineSegment(Vector(163, 73, 0), Vector(183, 73, 0)),  # 20
    Part.ArcOfCircle(Part.Circle(Vector(183, 68, 0), Vector(0, 0, 1), 5), math.radians(0), math.radians(90)),  # 21
    Part.LineSegment(Vector(188, 68, 0), Vector(188, -5, 0)),  # 22
    Part.ArcOfCircle(Part.Circle(Vector(183, -5, 0), Vector(0, 0, 1), 5), math.radians(-90), math.radians(0)),  # 23
    Part.LineSegment(Vector(90, 0, 0), Vector(90, 63, 0)),  # 24
    Part.LineSegment(Vector(90, 63, 0), Vector(138, 63, 0)),  # 25
    Part.LineSegment(Vector(138, 63, 0), Vector(138, 0, 0)),  # 26
    Part.LineSegment(Vector(138, 0, 0), Vector(90, 0, 0)),  # 27
    Part.LineSegment(Vector(-28, 0, 0), Vector(-28, 63, 0)),  # 28
    Part.LineSegment(Vector(-28, 63, 0), Vector(20, 63, 0)),  # 29
    Part.LineSegment(Vector(20, 63, 0), Vector(20, 0, 0)),  # 30
    Part.LineSegment(Vector(20, 0, 0), Vector(-28, 0, 0)),  # 31
], False)
sketch10.addConstraint([
    Sketcher.Constraint("Tangent", 0, 2, 1, 2),
    Sketcher.Constraint("Tangent", 1, 1, 2, 1),
    Sketcher.Constraint("Tangent", 2, 2, 3, 2),
    Sketcher.Constraint("Tangent", 3, 1, 4, 1),
    Sketcher.Constraint("Tangent", 4, 2, 5, 2),
    Sketcher.Constraint("Tangent", 5, 1, 6, 1),
    Sketcher.Constraint("Tangent", 6, 2, 7, 2),
    Sketcher.Constraint("Tangent", 7, 1, 0, 1),
    Sketcher.Constraint("Tangent", 8, 2, 9, 2),
    Sketcher.Constraint("Tangent", 9, 1, 10, 1),
    Sketcher.Constraint("Tangent", 10, 2, 11, 2),
    Sketcher.Constraint("Tangent", 11, 1, 12, 1),
    Sketcher.Constraint("Tangent", 12, 2, 13, 2),
    Sketcher.Constraint("Tangent", 13, 1, 14, 1),
    Sketcher.Constraint("Tangent", 14, 2, 15, 2),
    Sketcher.Constraint("Tangent", 15, 1, 8, 1),
    Sketcher.Constraint("Tangent", 16, 2, 17, 2),
    Sketcher.Constraint("Tangent", 17, 1, 18, 1),
    Sketcher.Constraint("Tangent", 18, 2, 19, 2),
    Sketcher.Constraint("Tangent", 19, 1, 20, 1),
    Sketcher.Constraint("Tangent", 20, 2, 21, 2),
    Sketcher.Constraint("Tangent", 21, 1, 22, 1),
    Sketcher.Constraint("Tangent", 22, 2, 23, 2),
    Sketcher.Constraint("Tangent", 23, 1, 16, 1),
    Sketcher.Constraint("Coincident", 24, 2, 25, 1),
    Sketcher.Constraint("Coincident", 25, 2, 26, 1),
    Sketcher.Constraint("Coincident", 26, 2, 27, 1),
    Sketcher.Constraint("Coincident", 27, 2, 24, 1),
    Sketcher.Constraint("Coincident", 28, 2, 29, 1),
    Sketcher.Constraint("Coincident", 29, 2, 30, 1),
    Sketcher.Constraint("Coincident", 30, 2, 31, 1),
    Sketcher.Constraint("Coincident", 31, 2, 28, 1),
    Sketcher.Constraint("Horizontal", 0),
    Sketcher.Constraint("Vertical", 2),
    Sketcher.Constraint("Horizontal", 4),
    Sketcher.Constraint("Vertical", 6),
    Sketcher.Constraint("Vertical", 8),
    Sketcher.Constraint("Horizontal", 10),
    Sketcher.Constraint("Vertical", 12),
    Sketcher.Constraint("Horizontal", 14),
    Sketcher.Constraint("Horizontal", 16),
    Sketcher.Constraint("Vertical", 18),
    Sketcher.Constraint("Horizontal", 20),
    Sketcher.Constraint("Vertical", 22),
    Sketcher.Constraint("Vertical", 24),
    Sketcher.Constraint("Horizontal", 25),
    Sketcher.Constraint("Vertical", 26),
    Sketcher.Constraint("Horizontal", 27),
    Sketcher.Constraint("Vertical", 28),
    Sketcher.Constraint("Horizontal", 29),
    Sketcher.Constraint("Vertical", 30),
    Sketcher.Constraint("Horizontal", 31),
    Sketcher.Constraint("Equal", 1, 3),
    Sketcher.Constraint("Equal", 3, 5),
    Sketcher.Constraint("Equal", 5, 7),
    Sketcher.Constraint("Equal", 7, 9),
    Sketcher.Constraint("Equal", 9, 11),
    Sketcher.Constraint("Equal", 11, 13),
    Sketcher.Constraint("Equal", 13, 15),
    Sketcher.Constraint("Equal", 15, 17),
    Sketcher.Constraint("Equal", 17, 19),
    Sketcher.Constraint("Equal", 19, 21),
    Sketcher.Constraint("Equal", 21, 23),
    Sketcher.Constraint("PointOnObject", 26, 2, -1),
    Sketcher.Constraint("PointOnObject", 30, 2, -1),
    Sketcher.Constraint("Horizontal", 7, 3, 9, 3),
    Sketcher.Constraint("Horizontal", 5, 3, 13, 3),
    Sketcher.Constraint("Horizontal", 15, 3, 17, 3),
    Sketcher.Constraint("Horizontal", 11, 3, 19, 3),
    Sketcher.Constraint("Horizontal", 25, 2, 28, 2),
    Sketcher.Constraint("Equal", 4, 10),
    Sketcher.Constraint("Equal", 14, 16),
    Sketcher.Constraint("Equal", 27, 29),
    Sketcher.Constraint("Radius", 1, Q("5 mm")),
    Sketcher.Constraint("DistanceX", 0, 1, 0, 2, Q("20 mm")),
    Sketcher.Constraint("DistanceY", 2, 2, 2, 1, Q("73 mm")),
    Sketcher.Constraint("DistanceY", 24, 1, 24, 2, Q("63 mm")),
    Sketcher.Constraint("DistanceY", -1, 1, 1, 3, Q("68 mm")),
    Sketcher.Constraint("DistanceX", -1, 1, 9, 3, Q("45 mm")),
    Sketcher.Constraint("DistanceX", -1, 1, 24, 2, Q("90 mm")),
    Sketcher.Constraint("DistanceX", -1, 1, 29, 2, Q("20 mm")),
    Sketcher.Constraint("DistanceX", 25, 2, 18, 2, Q("20 mm")),
    Sketcher.Constraint("DistanceX", 1, 1, 28, 2, Q("20 mm")),
    Sketcher.Constraint("DistanceX", 25, 1, 25, 2, Q("47.641975 mm")),
])
pad6 = body.newObject("PartDesign::Pad", "Pad005")
pad6.Profile = sketch10
pad6.Length = 5

# Sketch on XZ plane
sketch11 = body.newObject("Sketcher::SketchObject", "Sketch010")
sketch11.AttachmentSupport = (doc.getObject("XZ_Plane"), [""])
sketch11.MapMode = "FlatFace"
sketch11.AttachmentOffset = App.Placement(Vector(0, 0, -82.069706), App.Rotation())
sketch11.addGeometry([
    Part.Circle(Vector(-72.6, -5, 0), Vector(0, 0, 1), 2),  # 0
    Part.Circle(Vector(-52.6, -5, 0), Vector(0, 0, 1), 2),  # 1
    Part.Circle(Vector(45, -5, 0), Vector(0, 0, 1), 2),  # 2
    Part.Circle(Vector(65, -5, 0), Vector(0, 0, 1), 2),  # 3
    Part.Circle(Vector(162.6, -5, 0), Vector(0, 0, 1), 2),  # 4
    Part.Circle(Vector(182.6, -5, 0), Vector(0, 0, 1), 2),  # 5
    Part.Circle(Vector(-72.6, 68, 0), Vector(0, 0, 1), 2),  # 6
    Part.Circle(Vector(-52.6, 68, 0), Vector(0, 0, 1), 2),  # 7
    Part.Circle(Vector(45, 68, 0), Vector(0, 0, 1), 2),  # 8
    Part.Circle(Vector(65, 68, 0), Vector(0, 0, 1), 2),  # 9
    Part.Circle(Vector(162.6, 68, 0), Vector(0, 0, 1), 2),  # 10
    Part.Circle(Vector(182.6, 68, 0), Vector(0, 0, 1), 2),  # 11
], False)
sketch11.addConstraint([
    Sketcher.Constraint("Equal", 0, 1),
    Sketcher.Constraint("Equal", 1, 2),
    Sketcher.Constraint("Equal", 2, 3),
    Sketcher.Constraint("Equal", 3, 4),
    Sketcher.Constraint("Equal", 4, 5),
    Sketcher.Constraint("Equal", 5, 6),
    Sketcher.Constraint("Equal", 6, 7),
    Sketcher.Constraint("Equal", 7, 8),
    Sketcher.Constraint("Equal", 8, 9),
    Sketcher.Constraint("Equal", 9, 10),
    Sketcher.Constraint("Equal", 10, 11),
    Sketcher.Constraint("Horizontal", 0, 3, 1, 3),
    Sketcher.Constraint("Horizontal", 1, 3, 2, 3),
    Sketcher.Constraint("Horizontal", 2, 3, 3, 3),
    Sketcher.Constraint("Horizontal", 3, 3, 4, 3),
    Sketcher.Constraint("Horizontal", 4, 3, 5, 3),
    Sketcher.Constraint("Horizontal", 6, 3, 7, 3),
    Sketcher.Constraint("Horizontal", 7, 3, 8, 3),
    Sketcher.Constraint("Horizontal", 8, 3, 9, 3),
    Sketcher.Constraint("Horizontal", 9, 3, 10, 3),
    Sketcher.Constraint("Horizontal", 10, 3, 11, 3),
    Sketcher.Constraint("Vertical", 0, 3, 6, 3),
    Sketcher.Constraint("Vertical", 1, 3, 7, 3),
    Sketcher.Constraint("Vertical", 2, 3, 8, 3),
    Sketcher.Constraint("Vertical", 3, 3, 9, 3),
    Sketcher.Constraint("Vertical", 4, 3, 10, 3),
    Sketcher.Constraint("Vertical", 5, 3, 11, 3),
    Sketcher.Constraint("Diameter", 0, Q("4 mm")),
    Sketcher.Constraint("DistanceY", 0, 3, -1, 1, Q("5 mm")),
    Sketcher.Constraint("DistanceX", -1, 1, 2, 3, Q("45 mm")),
    Sketcher.Constraint("DistanceX", -1, 1, 3, 3, Q("65 mm")),
    Sketcher.Constraint("DistanceY", -1, 1, 6, 3, Q("68 mm")),
    Sketcher.Constraint("DistanceX", 0, 3, 1, 3, Q("20 mm")),
    Sketcher.Constraint("DistanceX", 4, 3, 5, 3, Q("20 mm")),
    Sketcher.Constraint("DistanceX", 1, 3, 4, 3, Q("215.28395 mm")),
    Sketcher.Constraint("DistanceX", 0, 3, -1, 1, Q("72.641975 mm")),
])
pocket5 = body.newObject("PartDesign::Pocket", "Pocket004")
pocket5.Profile = sketch11
pocket5.Length = 28
pocket5.Midplane = True

doc.recompute()
